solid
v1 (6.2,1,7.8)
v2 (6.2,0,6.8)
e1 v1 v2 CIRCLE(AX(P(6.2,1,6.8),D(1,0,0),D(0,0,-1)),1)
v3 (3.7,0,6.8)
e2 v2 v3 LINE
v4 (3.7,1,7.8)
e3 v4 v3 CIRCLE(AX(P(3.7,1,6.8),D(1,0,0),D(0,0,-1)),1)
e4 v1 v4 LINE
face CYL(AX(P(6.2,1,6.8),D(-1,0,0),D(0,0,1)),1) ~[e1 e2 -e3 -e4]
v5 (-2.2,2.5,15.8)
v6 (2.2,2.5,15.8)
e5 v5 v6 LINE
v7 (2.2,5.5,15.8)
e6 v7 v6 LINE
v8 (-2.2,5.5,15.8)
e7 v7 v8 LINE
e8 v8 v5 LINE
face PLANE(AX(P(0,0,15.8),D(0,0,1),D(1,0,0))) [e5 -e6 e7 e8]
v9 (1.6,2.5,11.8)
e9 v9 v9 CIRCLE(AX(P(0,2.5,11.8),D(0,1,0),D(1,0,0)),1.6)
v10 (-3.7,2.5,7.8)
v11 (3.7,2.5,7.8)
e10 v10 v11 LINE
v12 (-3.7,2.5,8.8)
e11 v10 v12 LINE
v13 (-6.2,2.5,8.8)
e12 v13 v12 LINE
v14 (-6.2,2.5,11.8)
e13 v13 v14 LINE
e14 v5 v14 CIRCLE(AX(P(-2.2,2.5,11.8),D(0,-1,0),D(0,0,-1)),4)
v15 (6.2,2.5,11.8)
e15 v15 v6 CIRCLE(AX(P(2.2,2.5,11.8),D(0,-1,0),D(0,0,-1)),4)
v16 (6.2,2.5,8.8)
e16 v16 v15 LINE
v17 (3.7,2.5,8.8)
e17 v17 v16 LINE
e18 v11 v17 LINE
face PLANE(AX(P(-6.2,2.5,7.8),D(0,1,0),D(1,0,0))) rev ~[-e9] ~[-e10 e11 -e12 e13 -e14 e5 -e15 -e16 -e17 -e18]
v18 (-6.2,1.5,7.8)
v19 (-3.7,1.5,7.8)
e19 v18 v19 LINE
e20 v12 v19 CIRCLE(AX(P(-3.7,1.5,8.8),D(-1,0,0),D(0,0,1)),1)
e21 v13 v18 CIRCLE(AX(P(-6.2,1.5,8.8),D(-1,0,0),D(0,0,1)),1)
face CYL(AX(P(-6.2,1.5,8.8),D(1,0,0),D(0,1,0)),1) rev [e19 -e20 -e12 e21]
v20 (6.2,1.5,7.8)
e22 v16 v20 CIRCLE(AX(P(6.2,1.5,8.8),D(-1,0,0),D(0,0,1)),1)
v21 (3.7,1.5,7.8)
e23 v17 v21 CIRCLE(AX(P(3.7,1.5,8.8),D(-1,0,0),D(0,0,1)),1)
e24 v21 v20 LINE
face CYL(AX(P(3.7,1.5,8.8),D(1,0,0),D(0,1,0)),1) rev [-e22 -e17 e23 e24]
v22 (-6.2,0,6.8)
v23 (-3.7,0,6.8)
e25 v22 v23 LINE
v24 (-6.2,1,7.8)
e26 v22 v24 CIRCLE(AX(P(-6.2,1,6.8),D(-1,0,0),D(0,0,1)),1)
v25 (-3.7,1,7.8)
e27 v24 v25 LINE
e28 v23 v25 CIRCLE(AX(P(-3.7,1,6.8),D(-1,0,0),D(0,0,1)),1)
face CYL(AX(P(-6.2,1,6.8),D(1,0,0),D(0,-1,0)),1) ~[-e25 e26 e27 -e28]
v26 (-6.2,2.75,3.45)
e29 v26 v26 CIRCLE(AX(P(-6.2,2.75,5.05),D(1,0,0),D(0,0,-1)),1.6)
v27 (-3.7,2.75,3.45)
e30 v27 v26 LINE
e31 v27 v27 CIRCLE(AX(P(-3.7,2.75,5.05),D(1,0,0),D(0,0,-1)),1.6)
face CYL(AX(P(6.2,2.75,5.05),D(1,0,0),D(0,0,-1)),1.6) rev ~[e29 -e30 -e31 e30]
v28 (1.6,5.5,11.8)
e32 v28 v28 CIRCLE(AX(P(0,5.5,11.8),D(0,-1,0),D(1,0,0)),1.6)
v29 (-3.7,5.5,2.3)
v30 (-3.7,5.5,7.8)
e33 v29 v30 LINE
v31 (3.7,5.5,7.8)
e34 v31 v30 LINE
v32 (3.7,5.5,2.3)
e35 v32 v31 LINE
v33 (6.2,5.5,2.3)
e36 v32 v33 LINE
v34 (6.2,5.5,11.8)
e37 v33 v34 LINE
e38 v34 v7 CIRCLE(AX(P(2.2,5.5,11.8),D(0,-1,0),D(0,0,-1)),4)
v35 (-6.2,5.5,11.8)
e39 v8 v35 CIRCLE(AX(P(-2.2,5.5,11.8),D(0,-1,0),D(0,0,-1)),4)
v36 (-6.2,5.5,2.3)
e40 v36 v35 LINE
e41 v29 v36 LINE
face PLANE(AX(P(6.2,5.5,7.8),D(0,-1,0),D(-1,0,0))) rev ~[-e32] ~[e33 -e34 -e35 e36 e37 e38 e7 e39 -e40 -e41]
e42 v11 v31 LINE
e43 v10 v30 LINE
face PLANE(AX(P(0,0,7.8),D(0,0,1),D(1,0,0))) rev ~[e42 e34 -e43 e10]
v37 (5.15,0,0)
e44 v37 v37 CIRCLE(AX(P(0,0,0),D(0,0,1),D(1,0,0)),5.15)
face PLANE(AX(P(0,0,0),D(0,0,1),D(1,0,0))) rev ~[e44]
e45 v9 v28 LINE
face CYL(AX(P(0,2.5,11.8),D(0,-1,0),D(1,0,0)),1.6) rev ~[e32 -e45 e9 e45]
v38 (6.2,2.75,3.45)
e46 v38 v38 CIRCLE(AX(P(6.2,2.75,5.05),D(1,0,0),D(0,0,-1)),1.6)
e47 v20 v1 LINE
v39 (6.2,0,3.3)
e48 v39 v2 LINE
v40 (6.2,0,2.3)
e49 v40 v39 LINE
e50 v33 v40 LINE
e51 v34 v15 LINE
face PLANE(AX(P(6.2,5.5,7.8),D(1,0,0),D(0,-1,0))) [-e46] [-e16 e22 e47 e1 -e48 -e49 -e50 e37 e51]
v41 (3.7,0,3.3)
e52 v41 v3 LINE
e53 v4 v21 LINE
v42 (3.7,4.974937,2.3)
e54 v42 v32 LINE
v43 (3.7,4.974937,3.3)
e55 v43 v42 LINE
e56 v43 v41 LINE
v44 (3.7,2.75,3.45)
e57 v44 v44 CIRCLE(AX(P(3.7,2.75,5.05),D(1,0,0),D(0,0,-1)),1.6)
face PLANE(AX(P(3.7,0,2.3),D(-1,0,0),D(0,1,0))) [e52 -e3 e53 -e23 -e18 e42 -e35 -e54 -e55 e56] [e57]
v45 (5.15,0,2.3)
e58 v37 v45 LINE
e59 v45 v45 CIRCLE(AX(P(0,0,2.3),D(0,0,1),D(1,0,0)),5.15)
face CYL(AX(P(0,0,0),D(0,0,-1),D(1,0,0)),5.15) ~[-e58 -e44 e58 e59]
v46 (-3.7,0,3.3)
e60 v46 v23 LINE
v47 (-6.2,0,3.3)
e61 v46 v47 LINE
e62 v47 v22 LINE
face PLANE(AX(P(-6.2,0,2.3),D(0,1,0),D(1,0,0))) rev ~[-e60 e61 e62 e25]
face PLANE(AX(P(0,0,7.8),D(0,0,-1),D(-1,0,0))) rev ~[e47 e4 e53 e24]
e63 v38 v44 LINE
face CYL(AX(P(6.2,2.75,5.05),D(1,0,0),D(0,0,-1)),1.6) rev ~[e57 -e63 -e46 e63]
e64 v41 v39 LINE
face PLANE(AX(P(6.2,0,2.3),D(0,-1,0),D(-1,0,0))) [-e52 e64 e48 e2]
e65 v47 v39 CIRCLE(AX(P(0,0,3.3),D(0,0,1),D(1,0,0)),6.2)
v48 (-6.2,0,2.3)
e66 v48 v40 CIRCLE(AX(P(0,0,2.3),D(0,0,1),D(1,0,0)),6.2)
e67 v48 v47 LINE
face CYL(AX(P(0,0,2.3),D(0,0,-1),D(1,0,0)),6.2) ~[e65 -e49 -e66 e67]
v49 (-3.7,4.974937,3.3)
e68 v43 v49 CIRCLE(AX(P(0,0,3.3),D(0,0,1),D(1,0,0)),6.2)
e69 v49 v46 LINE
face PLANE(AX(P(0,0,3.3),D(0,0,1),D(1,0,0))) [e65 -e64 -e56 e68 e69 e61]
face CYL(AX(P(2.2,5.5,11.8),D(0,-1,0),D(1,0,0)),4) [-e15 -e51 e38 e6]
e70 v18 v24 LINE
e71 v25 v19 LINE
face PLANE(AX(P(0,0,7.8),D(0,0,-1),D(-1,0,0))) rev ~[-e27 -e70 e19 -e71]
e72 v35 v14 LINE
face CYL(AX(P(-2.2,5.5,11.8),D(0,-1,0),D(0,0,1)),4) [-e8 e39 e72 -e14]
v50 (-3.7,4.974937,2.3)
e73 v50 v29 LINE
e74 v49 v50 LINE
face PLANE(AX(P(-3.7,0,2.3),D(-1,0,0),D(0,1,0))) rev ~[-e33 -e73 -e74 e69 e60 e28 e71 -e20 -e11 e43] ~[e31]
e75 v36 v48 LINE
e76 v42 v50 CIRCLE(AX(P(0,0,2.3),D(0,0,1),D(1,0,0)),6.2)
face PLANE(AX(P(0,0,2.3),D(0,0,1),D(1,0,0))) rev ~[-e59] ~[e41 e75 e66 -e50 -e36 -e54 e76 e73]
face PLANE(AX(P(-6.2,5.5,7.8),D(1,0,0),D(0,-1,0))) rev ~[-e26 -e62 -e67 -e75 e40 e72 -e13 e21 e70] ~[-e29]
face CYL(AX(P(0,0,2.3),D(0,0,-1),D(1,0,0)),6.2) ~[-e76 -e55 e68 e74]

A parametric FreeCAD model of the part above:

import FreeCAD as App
import Part
import Sketcher
Q = App.Units.Quantity


def edges_at(feature, points):
    """Names of the edges that pass closest to the given points."""
    edges = feature.Shape.Edges
    near = lambda p: min(range(len(edges)), key=lambda i: edges[i].distToShape(Part.Vertex(*p))[0])
    return sorted({f"Edge{near(p) + 1}" for p in points})


def add_polygon(sketch, points):
    """Adds a closed chain of lines whose ends are joined by coincident constraints."""
    first, n = sketch.GeometryCount, len(points)
    for a, b in zip(points, points[1:] + points[:1]):
        sketch.addGeometry(Part.LineSegment(App.Vector(*a, 0), App.Vector(*b, 0)), False)
    for i in range(n):
        sketch.addConstraint(Sketcher.Constraint("Coincident", first + i, 2, first + (i + 1) % n, 1))

doc = App.newDocument("Part")
body = doc.addObject("PartDesign::Body", "Body")

sketch1 = body.newObject("Sketcher::SketchObject", "Sketch")
sketch1.AttachmentSupport = (doc.getObject("XY_Plane"), [""])
sketch1.MapMode = "FlatFace"
sketch1.addGeometry(Part.Circle(App.Vector(0, 0, 0), App.Vector(0, 0, 1), 5), False)
sketch1.addConstraint(Sketcher.Constraint("Coincident", 0, 3, -1, 1))
sketch1.addConstraint(Sketcher.Constraint("Diameter", 0, Q("10.3 mm")))
pad1 = body.newObject("PartDesign::Pad", "Pad")
pad1.Profile = sketch1
pad1.Length = 2.3

sketch2 = body.newObject("Sketcher::SketchObject", "Sketch001")
sketch2.AttachmentSupport = (doc.getObject("XY_Plane"), [""])
sketch2.MapMode = "FlatFace"
sketch2.AttachmentOffset = App.Placement(App.Vector(0, 0, 2.3), App.Rotation())
sketch2.addGeometry(Part.Circle(App.Vector(0, 0, 0), App.Vector(0, 0, 1), 6), False)
sketch2.addConstraint(Sketcher.Constraint("Coincident", 0, 3, -1, 1))
sketch2.addConstraint(Sketcher.Constraint("Diameter", 0, Q("12.4 mm")))
pad2 = body.newObject("PartDesign::Pad", "Pad001")
pad2.Profile = sketch2
pad2.Length = 1

sketch3 = body.newObject("Sketcher::SketchObject", "Sketch002")
sketch3.AttachmentSupport = (doc.getObject("XY_Plane"), [""])
sketch3.MapMode = "FlatFace"
sketch3.AttachmentOffset = App.Placement(App.Vector(0, 0, 2.3), App.Rotation())
add_polygon(sketch3, [(-3.7, 0), (-6.2, 0), (-6.2, 5.5), (-3.7, 5.5)])
add_polygon(sketch3, [(6.2, 5.5), (6.2, 0), (3.7, 0), (3.7, 5.5)])
sketch3.addConstraint(Sketcher.Constraint("Horizontal", 0))
sketch3.addConstraint(Sketcher.Constraint("Vertical", 1))
sketch3.addConstraint(Sketcher.Constraint("Horizontal", 2))
sketch3.addConstraint(Sketcher.Constraint("Vertical", 3))
sketch3.addConstraint(Sketcher.Constraint("Vertical", 4))
sketch3.addConstraint(Sketcher.Constraint("Horizontal", 5))
sketch3.addConstraint(Sketcher.Constraint("Vertical", 6))
sketch3.addConstraint(Sketcher.Constraint("Horizontal", 7))
sketch3.addConstraint(Sketcher.Constraint("Symmetric", 0, 2, 4, 2, -1, 1))
sketch3.addConstraint(Sketcher.Constraint("Symmetric", 3, 2, 5, 2, -2))
sketch3.addConstraint(Sketcher.Constraint("Horizontal", 2, 2, 6, 2))
sketch3.addConstraint(Sketcher.Constraint("DistanceX", 0, 2, 0, 1, Q("2.5 mm")))
sketch3.addConstraint(Sketcher.Constraint("DistanceY", 1, 1, 1, 2, Q("5.5 mm")))
sketch3.addConstraint(Sketcher.Constraint("DistanceX", 0, 2, -1, 1, Q("6.2 mm")))
pad3 = body.newObject("PartDesign::Pad", "Pad002")
pad3.Profile = sketch3
pad3.Length = 5.5

sketch4 = body.newObject("Sketcher::SketchObject", "Sketch003")
sketch4.AttachmentSupport = (doc.getObject("YZ_Plane"), [""])
sketch4.MapMode = "FlatFace"
sketch4.AttachmentOffset = App.Placement(App.Vector(0, 0, 6.2), App.Rotation())
sketch4.addGeometry(Part.Circle(App.Vector(2.8, 5, 0), App.Vector(0, 0, 1), 1.6), False)
sketch4.addConstraint(Sketcher.Constraint("Diameter", 0, Q("3.2 mm")))
sketch4.addConstraint(Sketcher.Constraint("DistanceX", -1, 1, 0, 3, Q("2.75 mm")))
sketch4.addConstraint(Sketcher.Constraint("DistanceY", -1, 1, 0, 3, Q("5.05 mm")))
pocket1 = body.newObject("PartDesign::Pocket", "Pocket")
pocket1.Profile = sketch4
pocket1.Type = "ThroughAll"
doc.recompute()

fillet = body.newObject("PartDesign::Fillet", "Fillet")
fillet.Base = (pocket1, edges_at(pocket1, [(4.95, 0, 7.8), (-4.95, 0, 7.8)]))
fillet.Radius = 1

sketch5 = body.newObject("Sketcher::SketchObject", "Sketch004")
sketch5.AttachmentSupport = (doc.getObject("XY_Plane"), [""])
sketch5.MapMode = "FlatFace"
sketch5.AttachmentOffset = App.Placement(App.Vector(0, 0, 7.8), App.Rotation())
add_polygon(sketch5, [(6.2, 2.5), (6.2, 5.5), (-6.2, 5.5), (-6.2, 2.5)])
sketch5.addConstraint(Sketcher.Constraint("Vertical", 0))
sketch5.addConstraint(Sketcher.Constraint("Horizontal", 1))
sketch5.addConstraint(Sketcher.Constraint("Vertical", 2))
sketch5.addConstraint(Sketcher.Constraint("Horizontal", 3))
sketch5.addConstraint(Sketcher.Constraint("DistanceY", 0, 1, 0, 2, Q("3 mm")))
sketch5.addConstraint(Sketcher.Constraint("DistanceX", 1, 2, 1, 1, Q("12.4 mm")))
sketch5.addConstraint(Sketcher.Constraint("DistanceX", -1, 1, 0, 2, Q("6.2 mm")))
sketch5.addConstraint(Sketcher.Constraint("DistanceY", -1, 1, 0, 2, Q("5.5 mm")))
pad4 = body.newObject("PartDesign::Pad", "Pad003")
pad4.Profile = sketch5
pad4.Length = 8
doc.recompute()

fillet2 = body.newObject("PartDesign::Fillet", "Fillet001")
fillet2.Base = (pad4, edges_at(pad4, [(-4.95, 2.5, 7.8), (4.95, 2.5, 7.8)]))
fillet2.Radius = 1
doc.recompute()

fillet3 = body.newObject("PartDesign::Fillet", "Fillet002")
fillet3.Base = (fillet2, edges_at(fillet2, [(-6.2, 4, 15.8), (6.2, 4, 15.8)]))
fillet3.Radius = 4

sketch6 = body.newObject("Sketcher::SketchObject", "Sketch005")
sketch6.AttachmentSupport = (doc.getObject("XZ_Plane"), [""])
sketch6.MapMode = "FlatFace"
sketch6.AttachmentOffset = App.Placement(App.Vector(0, 0, -2.5), App.Rotation())
sketch6.addGeometry(Part.Circle(App.Vector(0, 11.8, 0), App.Vector(0, 0, 1), 1.6), False)
sketch6.addConstraint(Sketcher.Constraint("PointOnObject", 0, 3, -2))
sketch6.addConstraint(Sketcher.Constraint("Diameter", 0, Q("3.2 mm")))
sketch6.addConstraint(Sketcher.Constraint("DistanceY", -1, 1, 0, 3, Q("11.8 mm")))
pocket2 = body.newObject("PartDesign::Pocket", "Pocket001")
pocket2.Profile = sketch6
pocket2.Type = "ThroughAll"

doc.recompute()
